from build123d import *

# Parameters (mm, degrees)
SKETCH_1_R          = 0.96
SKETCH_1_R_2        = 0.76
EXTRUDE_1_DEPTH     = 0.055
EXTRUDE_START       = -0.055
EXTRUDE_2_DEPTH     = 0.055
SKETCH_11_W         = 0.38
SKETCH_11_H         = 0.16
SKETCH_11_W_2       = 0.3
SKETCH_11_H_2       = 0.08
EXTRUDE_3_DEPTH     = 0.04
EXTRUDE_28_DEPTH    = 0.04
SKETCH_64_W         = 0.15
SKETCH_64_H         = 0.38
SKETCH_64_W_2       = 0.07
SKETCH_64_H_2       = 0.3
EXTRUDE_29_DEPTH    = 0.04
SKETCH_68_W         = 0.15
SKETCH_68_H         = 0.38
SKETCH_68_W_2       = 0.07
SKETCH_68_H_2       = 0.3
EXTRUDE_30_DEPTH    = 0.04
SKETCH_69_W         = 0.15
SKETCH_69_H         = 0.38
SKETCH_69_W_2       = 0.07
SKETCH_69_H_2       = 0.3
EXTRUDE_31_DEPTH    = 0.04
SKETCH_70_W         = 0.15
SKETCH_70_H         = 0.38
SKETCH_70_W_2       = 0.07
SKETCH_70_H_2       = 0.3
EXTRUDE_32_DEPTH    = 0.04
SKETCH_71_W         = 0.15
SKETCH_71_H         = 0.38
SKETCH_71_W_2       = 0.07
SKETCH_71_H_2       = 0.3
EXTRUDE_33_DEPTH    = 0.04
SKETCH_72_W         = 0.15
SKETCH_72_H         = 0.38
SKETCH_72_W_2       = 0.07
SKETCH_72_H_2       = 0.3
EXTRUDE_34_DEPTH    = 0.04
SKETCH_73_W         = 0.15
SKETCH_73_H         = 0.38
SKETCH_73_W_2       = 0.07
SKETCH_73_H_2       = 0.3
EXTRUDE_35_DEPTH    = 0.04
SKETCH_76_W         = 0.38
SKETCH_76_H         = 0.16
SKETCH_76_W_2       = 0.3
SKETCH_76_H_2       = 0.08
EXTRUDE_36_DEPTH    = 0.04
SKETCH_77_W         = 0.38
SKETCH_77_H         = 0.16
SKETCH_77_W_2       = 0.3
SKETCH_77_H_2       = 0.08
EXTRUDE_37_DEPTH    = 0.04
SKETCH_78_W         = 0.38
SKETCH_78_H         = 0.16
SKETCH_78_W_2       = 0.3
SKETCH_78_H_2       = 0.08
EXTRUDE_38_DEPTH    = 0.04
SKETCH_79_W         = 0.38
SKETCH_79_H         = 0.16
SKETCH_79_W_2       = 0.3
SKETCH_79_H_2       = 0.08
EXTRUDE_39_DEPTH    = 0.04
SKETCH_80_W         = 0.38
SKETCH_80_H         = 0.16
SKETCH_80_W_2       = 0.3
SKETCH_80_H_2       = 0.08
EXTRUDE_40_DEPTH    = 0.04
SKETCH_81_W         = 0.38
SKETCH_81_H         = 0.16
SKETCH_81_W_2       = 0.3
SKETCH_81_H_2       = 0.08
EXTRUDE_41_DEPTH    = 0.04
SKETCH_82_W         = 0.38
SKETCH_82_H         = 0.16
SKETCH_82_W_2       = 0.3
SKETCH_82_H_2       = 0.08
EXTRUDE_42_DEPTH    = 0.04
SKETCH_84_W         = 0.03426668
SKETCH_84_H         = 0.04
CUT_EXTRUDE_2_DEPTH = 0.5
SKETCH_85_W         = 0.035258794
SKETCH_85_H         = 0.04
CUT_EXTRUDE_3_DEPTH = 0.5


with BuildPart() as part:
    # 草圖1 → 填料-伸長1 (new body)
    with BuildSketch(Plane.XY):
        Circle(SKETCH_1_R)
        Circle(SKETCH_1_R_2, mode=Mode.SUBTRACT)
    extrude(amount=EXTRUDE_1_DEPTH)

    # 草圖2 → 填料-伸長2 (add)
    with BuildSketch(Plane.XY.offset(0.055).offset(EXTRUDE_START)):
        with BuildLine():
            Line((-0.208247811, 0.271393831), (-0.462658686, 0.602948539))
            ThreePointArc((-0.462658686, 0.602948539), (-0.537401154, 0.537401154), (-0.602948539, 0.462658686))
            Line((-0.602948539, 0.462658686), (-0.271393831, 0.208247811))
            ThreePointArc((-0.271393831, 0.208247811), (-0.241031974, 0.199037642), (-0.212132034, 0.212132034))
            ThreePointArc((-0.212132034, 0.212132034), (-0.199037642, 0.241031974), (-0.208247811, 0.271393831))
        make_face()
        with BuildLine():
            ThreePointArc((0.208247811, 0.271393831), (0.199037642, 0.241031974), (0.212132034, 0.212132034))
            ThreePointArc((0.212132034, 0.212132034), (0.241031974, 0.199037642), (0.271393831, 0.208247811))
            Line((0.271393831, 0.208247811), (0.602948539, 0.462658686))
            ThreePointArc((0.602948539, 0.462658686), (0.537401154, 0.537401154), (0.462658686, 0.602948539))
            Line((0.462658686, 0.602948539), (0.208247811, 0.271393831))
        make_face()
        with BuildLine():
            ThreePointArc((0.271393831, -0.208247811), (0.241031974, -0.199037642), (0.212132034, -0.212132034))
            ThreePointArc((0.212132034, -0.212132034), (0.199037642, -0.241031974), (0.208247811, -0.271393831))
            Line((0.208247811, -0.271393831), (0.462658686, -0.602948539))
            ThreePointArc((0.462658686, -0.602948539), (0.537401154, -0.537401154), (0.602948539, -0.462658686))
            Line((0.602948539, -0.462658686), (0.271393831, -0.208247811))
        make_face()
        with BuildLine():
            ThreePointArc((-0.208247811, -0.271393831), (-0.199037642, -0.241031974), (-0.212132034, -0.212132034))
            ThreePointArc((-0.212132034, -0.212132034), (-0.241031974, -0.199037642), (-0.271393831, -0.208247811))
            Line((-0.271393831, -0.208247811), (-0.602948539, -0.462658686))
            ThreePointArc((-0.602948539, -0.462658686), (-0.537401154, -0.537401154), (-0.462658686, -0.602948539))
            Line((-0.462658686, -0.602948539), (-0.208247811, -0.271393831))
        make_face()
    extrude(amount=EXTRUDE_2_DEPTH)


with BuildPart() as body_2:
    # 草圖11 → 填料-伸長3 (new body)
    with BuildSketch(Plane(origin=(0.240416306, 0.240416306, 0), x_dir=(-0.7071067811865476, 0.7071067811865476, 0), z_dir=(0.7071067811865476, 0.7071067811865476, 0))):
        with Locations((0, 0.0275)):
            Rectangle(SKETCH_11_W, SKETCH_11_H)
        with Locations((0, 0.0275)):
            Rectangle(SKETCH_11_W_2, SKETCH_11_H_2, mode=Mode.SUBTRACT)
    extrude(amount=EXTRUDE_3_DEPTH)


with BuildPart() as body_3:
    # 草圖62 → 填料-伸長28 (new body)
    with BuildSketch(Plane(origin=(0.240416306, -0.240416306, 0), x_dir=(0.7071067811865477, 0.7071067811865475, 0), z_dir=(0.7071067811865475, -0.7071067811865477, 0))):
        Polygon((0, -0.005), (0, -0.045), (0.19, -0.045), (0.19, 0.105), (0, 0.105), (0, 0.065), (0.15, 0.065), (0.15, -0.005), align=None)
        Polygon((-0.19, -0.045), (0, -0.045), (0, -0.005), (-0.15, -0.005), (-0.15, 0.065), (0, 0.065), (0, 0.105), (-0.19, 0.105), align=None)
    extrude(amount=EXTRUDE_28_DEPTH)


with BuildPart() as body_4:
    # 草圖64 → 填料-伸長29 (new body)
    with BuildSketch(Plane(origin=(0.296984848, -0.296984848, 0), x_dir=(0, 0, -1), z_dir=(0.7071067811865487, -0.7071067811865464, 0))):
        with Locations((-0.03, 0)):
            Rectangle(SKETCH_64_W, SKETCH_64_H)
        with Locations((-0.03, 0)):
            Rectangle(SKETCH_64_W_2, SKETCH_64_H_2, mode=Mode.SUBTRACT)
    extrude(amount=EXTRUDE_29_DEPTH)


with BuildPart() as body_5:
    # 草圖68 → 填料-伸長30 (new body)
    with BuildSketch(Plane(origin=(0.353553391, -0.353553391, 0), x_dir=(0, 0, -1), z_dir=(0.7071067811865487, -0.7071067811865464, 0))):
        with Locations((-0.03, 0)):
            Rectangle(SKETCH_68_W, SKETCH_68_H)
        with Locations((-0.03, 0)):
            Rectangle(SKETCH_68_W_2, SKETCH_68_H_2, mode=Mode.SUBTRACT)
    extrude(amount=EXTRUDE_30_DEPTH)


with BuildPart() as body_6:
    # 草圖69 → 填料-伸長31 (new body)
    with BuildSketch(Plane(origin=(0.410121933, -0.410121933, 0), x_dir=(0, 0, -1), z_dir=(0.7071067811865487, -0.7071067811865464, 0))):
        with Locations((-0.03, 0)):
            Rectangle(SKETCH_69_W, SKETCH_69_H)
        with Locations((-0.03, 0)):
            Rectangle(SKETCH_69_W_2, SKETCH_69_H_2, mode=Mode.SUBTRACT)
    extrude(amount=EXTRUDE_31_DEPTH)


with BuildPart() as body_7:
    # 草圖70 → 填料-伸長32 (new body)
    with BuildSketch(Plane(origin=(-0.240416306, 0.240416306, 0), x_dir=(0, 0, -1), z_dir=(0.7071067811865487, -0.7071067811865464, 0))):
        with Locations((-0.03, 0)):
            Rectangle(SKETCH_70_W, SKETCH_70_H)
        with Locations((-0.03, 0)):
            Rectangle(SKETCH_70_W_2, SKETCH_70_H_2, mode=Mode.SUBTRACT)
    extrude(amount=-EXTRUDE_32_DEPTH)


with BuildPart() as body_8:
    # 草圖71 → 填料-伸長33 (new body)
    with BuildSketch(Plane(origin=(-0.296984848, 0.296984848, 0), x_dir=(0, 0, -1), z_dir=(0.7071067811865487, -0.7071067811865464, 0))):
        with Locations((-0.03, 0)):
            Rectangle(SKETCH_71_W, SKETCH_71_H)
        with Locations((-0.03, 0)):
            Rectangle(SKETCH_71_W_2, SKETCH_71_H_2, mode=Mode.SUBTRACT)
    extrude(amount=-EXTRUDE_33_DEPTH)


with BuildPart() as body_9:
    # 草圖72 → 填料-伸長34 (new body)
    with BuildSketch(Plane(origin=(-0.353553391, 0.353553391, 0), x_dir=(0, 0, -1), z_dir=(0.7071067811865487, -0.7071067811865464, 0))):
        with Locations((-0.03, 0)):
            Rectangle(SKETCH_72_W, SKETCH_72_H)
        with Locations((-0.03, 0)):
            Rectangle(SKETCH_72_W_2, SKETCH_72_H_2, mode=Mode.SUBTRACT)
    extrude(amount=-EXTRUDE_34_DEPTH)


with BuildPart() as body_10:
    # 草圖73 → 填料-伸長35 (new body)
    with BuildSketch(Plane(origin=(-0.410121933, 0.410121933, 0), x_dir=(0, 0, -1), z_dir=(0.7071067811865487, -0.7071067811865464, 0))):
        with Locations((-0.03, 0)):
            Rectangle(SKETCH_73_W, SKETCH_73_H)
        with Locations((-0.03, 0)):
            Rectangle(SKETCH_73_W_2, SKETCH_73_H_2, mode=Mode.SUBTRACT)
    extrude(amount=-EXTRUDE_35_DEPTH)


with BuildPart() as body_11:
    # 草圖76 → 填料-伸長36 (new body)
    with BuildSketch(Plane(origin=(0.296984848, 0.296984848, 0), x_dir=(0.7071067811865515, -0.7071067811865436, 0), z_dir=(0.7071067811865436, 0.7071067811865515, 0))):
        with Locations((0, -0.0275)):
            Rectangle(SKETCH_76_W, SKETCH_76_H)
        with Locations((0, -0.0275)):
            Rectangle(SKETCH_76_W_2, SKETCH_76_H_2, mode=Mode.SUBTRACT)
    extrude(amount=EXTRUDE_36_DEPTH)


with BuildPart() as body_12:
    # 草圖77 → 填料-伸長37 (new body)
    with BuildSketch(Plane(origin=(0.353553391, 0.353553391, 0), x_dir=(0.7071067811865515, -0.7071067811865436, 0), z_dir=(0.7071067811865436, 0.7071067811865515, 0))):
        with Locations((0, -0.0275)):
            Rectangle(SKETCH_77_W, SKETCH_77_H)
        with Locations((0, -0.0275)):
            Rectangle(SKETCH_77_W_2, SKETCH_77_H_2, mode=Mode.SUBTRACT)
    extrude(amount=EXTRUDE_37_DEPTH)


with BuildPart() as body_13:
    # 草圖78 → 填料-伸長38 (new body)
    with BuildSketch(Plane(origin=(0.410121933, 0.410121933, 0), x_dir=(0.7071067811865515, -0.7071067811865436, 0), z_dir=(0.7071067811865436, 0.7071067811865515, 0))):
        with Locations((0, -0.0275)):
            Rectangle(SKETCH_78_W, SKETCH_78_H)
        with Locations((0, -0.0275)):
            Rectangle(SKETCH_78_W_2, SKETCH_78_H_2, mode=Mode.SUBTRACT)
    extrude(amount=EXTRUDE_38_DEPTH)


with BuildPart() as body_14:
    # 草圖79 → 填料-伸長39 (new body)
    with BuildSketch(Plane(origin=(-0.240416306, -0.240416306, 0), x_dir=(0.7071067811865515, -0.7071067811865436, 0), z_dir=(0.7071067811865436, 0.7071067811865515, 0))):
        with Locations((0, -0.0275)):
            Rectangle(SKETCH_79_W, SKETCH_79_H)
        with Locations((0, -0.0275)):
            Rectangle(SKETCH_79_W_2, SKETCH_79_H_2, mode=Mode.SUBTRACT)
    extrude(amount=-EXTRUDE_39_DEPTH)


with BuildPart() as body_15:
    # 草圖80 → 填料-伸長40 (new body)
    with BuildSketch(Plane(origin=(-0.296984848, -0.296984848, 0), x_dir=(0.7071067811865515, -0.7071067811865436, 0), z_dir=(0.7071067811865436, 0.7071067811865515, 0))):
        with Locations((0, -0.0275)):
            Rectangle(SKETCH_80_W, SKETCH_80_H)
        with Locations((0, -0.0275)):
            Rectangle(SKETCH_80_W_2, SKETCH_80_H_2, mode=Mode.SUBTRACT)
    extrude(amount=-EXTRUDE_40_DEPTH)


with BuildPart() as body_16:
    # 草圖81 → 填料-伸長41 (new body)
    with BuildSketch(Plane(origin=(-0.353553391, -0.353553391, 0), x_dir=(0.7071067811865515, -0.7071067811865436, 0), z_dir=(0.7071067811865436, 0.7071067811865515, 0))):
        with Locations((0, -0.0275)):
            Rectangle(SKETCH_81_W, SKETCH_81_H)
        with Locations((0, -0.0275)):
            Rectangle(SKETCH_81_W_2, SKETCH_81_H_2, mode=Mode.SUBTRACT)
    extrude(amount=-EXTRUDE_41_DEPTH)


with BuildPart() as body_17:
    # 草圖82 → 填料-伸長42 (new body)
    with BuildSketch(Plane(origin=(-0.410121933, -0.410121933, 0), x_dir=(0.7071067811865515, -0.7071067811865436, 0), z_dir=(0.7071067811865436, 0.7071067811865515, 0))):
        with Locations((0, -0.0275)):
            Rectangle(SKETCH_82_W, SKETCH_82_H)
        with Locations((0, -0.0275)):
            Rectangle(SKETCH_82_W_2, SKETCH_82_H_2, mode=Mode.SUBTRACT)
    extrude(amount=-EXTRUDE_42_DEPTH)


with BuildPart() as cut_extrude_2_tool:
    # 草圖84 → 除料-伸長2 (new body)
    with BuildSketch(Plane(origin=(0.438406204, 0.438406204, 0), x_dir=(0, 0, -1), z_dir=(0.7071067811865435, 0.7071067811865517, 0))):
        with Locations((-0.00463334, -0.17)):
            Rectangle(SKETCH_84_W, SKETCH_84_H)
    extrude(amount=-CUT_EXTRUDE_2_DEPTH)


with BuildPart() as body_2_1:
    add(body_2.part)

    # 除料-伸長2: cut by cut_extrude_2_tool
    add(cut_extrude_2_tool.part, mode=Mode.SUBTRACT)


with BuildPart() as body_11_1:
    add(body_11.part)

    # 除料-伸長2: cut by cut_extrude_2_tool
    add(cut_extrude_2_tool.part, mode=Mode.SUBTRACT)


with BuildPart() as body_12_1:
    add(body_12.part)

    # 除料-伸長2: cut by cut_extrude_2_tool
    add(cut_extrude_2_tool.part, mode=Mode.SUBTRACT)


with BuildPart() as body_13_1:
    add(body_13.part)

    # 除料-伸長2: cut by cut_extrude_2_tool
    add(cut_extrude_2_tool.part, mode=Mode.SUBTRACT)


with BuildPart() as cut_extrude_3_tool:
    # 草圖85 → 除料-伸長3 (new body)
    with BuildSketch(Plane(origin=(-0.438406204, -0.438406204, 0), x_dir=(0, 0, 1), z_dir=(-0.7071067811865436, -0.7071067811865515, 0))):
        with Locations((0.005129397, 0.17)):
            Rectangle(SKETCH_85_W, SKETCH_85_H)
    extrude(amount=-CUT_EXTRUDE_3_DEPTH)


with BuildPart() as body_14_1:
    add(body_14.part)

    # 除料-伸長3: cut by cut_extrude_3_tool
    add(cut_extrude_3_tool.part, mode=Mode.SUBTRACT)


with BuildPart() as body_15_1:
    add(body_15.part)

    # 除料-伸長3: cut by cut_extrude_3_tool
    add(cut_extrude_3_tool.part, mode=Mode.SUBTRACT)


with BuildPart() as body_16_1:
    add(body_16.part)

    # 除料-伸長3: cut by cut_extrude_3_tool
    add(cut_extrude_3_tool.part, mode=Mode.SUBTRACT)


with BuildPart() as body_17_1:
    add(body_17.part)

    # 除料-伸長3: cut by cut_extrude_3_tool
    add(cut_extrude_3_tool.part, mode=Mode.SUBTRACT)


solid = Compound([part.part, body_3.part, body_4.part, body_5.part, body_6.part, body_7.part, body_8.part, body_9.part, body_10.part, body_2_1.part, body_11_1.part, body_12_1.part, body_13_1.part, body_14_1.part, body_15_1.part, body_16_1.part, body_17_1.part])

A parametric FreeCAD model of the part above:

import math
import FreeCAD as App
import Part
import Sketcher
Q = App.Units.Quantity


def add_polygon(sketch, points):
    """Adds a closed chain of lines whose ends are joined by coincident constraints."""
    first, n = sketch.GeometryCount, len(points)
    for a, b in zip(points, points[1:] + points[:1]):
        sketch.addGeometry(Part.LineSegment(App.Vector(*a, 0), App.Vector(*b, 0)), False)
    for i in range(n):
        sketch.addConstraint(Sketcher.Constraint("Coincident", first + i, 2, first + (i + 1) % n, 1))

doc = App.newDocument("Part")
params = doc.addObject("Spreadsheet::Sheet", "Params")
for row, (alias, value) in enumerate([
    ("sketch1_diameter", "1.92 mm"),
    ("sketch1_diameter2", "1.52 mm"),
    ("pad1_length", "0.055 mm"),
    ("sketch2_radius", "0.76 mm"),
    ("pad2_length", "0.055 mm"),
    ("sketch3_width", "0.3 mm"),
    ("sketch3_width2", "0.38 mm"),
    ("sketch3_height", "0.16 mm"),
    ("sketch3_height2", "0.08 mm"),
    ("pad3_length", "0.04 mm"),
    ("sketch4_width", "0.3 mm"),
    ("sketch4_width2", "0.38 mm"),
    ("sketch4_height", "0.15 mm"),
    ("sketch4_height2", "0.07 mm"),
    ("pad4_length", "0.04 mm"),
    ("sketch5_height", "0.3 mm"),
    ("sketch5_width", "0.15 mm"),
    ("sketch5_width2", "0.07 mm"),
    ("sketch5_height2", "0.38 mm"),
    ("pad5_length", "0.04 mm"),
    ("sketch6_height", "0.3 mm"),
    ("sketch6_width", "0.15 mm"),
    ("sketch6_width2", "0.07 mm"),
    ("sketch6_height2", "0.38 mm"),
    ("pad6_length", "0.04 mm"),
    ("sketch7_height", "0.3 mm"),
    ("sketch7_width", "0.15 mm"),
    ("sketch7_width2", "0.07 mm"),
    ("sketch7_height2", "0.38 mm"),
    ("pad7_length", "0.04 mm"),
    ("sketch8_height", "0.3 mm"),
    ("sketch8_width", "0.15 mm"),
    ("sketch8_width2", "0.07 mm"),
    ("sketch8_height2", "0.38 mm"),
    ("pad8_length", "0.04 mm"),
    ("sketch9_height", "0.3 mm"),
    ("sketch9_width", "0.15 mm"),
    ("sketch9_width2", "0.07 mm"),
    ("sketch9_height2", "0.38 mm"),
    ("pad9_length", "0.04 mm"),
    ("sketch10_height", "0.3 mm"),
    ("sketch10_width", "0.15 mm"),
    ("sketch10_width2", "0.07 mm"),
    ("sketch10_height2", "0.38 mm"),
    ("pad10_length", "0.04 mm"),
    ("sketch11_height", "0.3 mm"),
    ("sketch11_width", "0.15 mm"),
    ("sketch11_width2", "0.07 mm"),
    ("sketch11_height2", "0.38 mm"),
    ("pad11_length", "0.04 mm"),
    ("sketch12_width", "0.3 mm"),
    ("sketch12_width2", "0.38 mm"),
    ("sketch12_height", "0.16 mm"),
    ("sketch12_height2", "0.08 mm"),
    ("pad12_length", "0.04 mm"),
    ("sketch13_width", "0.3 mm"),
    ("sketch13_width2", "0.38 mm"),
    ("sketch13_height", "0.16 mm"),
    ("sketch13_height2", "0.08 mm"),
    ("pad13_length", "0.04 mm"),
    ("sketch14_width", "0.3 mm"),
    ("sketch14_width2", "0.38 mm"),
    ("sketch14_height", "0.16 mm"),
    ("sketch14_height2", "0.08 mm"),
    ("pad14_length", "0.04 mm"),
    ("sketch15_width", "0.3 mm"),
    ("sketch15_width2", "0.38 mm"),
    ("sketch15_height", "0.16 mm"),
    ("sketch15_height2", "0.08 mm"),
    ("pad15_length", "0.04 mm"),
    ("sketch16_width", "0.3 mm"),
    ("sketch16_width2", "0.38 mm"),
    ("sketch16_height", "0.16 mm"),
    ("sketch16_height2", "0.08 mm"),
    ("pad16_length", "0.04 mm"),
    ("sketch17_width", "0.3 mm"),
    ("sketch17_width2", "0.38 mm"),
    ("sketch17_height", "0.16 mm"),
    ("sketch17_height2", "0.08 mm"),
    ("pad17_length", "0.04 mm"),
    ("sketch18_width", "0.3 mm"),
    ("sketch18_width2", "0.38 mm"),
    ("sketch18_height", "0.16 mm"),
    ("sketch18_height2", "0.08 mm"),
    ("pad18_length", "0.04 mm"),
    ("sketch19_height", "0.04 mm"),
    ("pad19_length", "0.5 mm"),
    ("sketch20_height", "0.04 mm"),
    ("pad20_length", "0.5 mm"),
], start=1):
    params.set(f"A{row}", alias)
    params.set(f"B{row}", "=" + value)
    params.setAlias(f"B{row}", alias)

body = doc.addObject("PartDesign::Body", "Body")

sketch1 = body.newObject("Sketcher::SketchObject", "Sketch")
sketch1.AttachmentSupport = (doc.getObject("XY_Plane"), [""])
sketch1.MapMode = "FlatFace"
sketch1.addGeometry([
    Part.Circle(App.Vector(0, 0, 0), App.Vector(0, 0, 1), 0.96),
    Part.Circle(App.Vector(0, 0, 0), App.Vector(0, 0, 1), 0.76),
], False)
sketch1.addConstraint([
    Sketcher.Constraint("Coincident", 0, 3, -1, 1),
    Sketcher.Constraint("Coincident", 1, 3, -1, 1),
    Sketcher.Constraint("Diameter", 0, Q("1.92 mm")),
    Sketcher.Constraint("Diameter", 1, Q("1.52 mm")),
])
sketch1.setExpression("Constraints[2]", "Params.sketch1_diameter")
sketch1.setExpression("Constraints[3]", "Params.sketch1_diameter2")
pad1 = body.newObject("PartDesign::Pad", "Pad")
pad1.Profile = sketch1
pad1.setExpression("Length", "Params.pad1_length")

sketch2 = body.newObject("Sketcher::SketchObject", "Sketch001")
sketch2.AttachmentSupport = (doc.getObject("XY_Plane"), [""])
sketch2.MapMode = "FlatFace"
sketch2.addGeometry([
    Part.LineSegment(App.Vector(-0.208248, 0.271394, 0), App.Vector(-0.462659, 0.602949, 0)),
    Part.ArcOfCircle(Part.Circle(App.Vector(0, 0, 0), App.Vector(0, 0, 1), 0.76), math.radians(127.5), math.radians(142.5)),
    Part.LineSegment(App.Vector(-0.602949, 0.462659, 0), App.Vector(-0.271394, 0.208248, 0)),
    Part.ArcOfCircle(Part.Circle(App.Vector(-0.243977, 0.243977, 0), App.Vector(0, 0, 1), 0.045036), math.radians(-127.5), math.radians(-45.000001)),
    Part.ArcOfCircle(Part.Circle(App.Vector(-0.243977, 0.243977, 0), App.Vector(0, 0, 1), 0.045036), math.radians(-44.999999), math.radians(37.5)),
    Part.ArcOfCircle(Part.Circle(App.Vector(0.243977, 0.243977, 0), App.Vector(0, 0, 1), 0.045036), math.radians(142.5), math.radians(224.999999)),
    Part.ArcOfCircle(Part.Circle(App.Vector(0.243977, 0.243977, 0), App.Vector(0, 0, 1), 0.045036), math.radians(-134.999999), math.radians(-52.5)),
    Part.LineSegment(App.Vector(0.271394, 0.208248, 0), App.Vector(0.602949, 0.462659, 0)),
    Part.ArcOfCircle(Part.Circle(App.Vector(0, 0, 0), App.Vector(0, 0, 1), 0.76), math.radians(37.5), math.radians(52.5)),
    Part.LineSegment(App.Vector(0.462659, 0.602949, 0), App.Vector(0.208248, 0.271394, 0)),
    Part.ArcOfCircle(Part.Circle(App.Vector(0.243977, -0.243977, 0), App.Vector(0, 0, 1), 0.045036), math.radians(52.5), math.radians(134.999999)),
    Part.ArcOfCircle(Part.Circle(App.Vector(0.243977, -0.243977, 0), App.Vector(0, 0, 1), 0.045036), math.radians(135.000001), math.radians(217.5)),
    Part.LineSegment(App.Vector(0.208248, -0.271394, 0), App.Vector(0.462659, -0.602949, 0)),
    Part.ArcOfCircle(Part.Circle(App.Vector(0, 0, 0), App.Vector(0, 0, 1), 0.76), math.radians(-52.5), math.radians(-37.5)),
    Part.LineSegment(App.Vector(0.602949, -0.462659, 0), App.Vector(0.271394, -0.208248, 0)),
    Part.ArcOfCircle(Part.Circle(App.Vector(-0.243977, -0.243977, 0), App.Vector(0, 0, 1), 0.045036), math.radians(-37.5), math.radians(44.999999)),
    Part.ArcOfCircle(Part.Circle(App.Vector(-0.243977, -0.243977, 0), App.Vector(0, 0, 1), 0.045036), math.radians(45.000001), math.radians(127.5)),
    Part.LineSegment(App.Vector(-0.271394, -0.208248, 0), App.Vector(-0.602949, -0.462659, 0)),
    Part.ArcOfCircle(Part.Circle(App.Vector(0, 0, 0), App.Vector(0, 0, 1), 0.76), math.radians(-142.5), math.radians(-127.5)),
    Part.LineSegment(App.Vector(-0.462659, -0.602949, 0), App.Vector(-0.208248, -0.271394, 0)),
], False)
sketch2.addConstraint([
    Sketcher.Constraint("Coincident", 0, 2, 1, 1),
    Sketcher.Constraint("Coincident", 1, 2, 2, 1),
    Sketcher.Constraint("Tangent", 2, 2, 3, 1),
    Sketcher.Constraint("Tangent", 3, 2, 4, 1),
    Sketcher.Constraint("Tangent", 4, 2, 0, 1),
    Sketcher.Constraint("Tangent", 5, 2, 6, 1),
    Sketcher.Constraint("Tangent", 6, 2, 7, 1),
    Sketcher.Constraint("Coincident", 7, 2, 8, 1),
    Sketcher.Constraint("Coincident", 8, 2, 9, 1),
    Sketcher.Constraint("Tangent", 9, 2, 5, 1),
    Sketcher.Constraint("Tangent", 10, 2, 11, 1),
    Sketcher.Constraint("Tangent", 11, 2, 12, 1),
    Sketcher.Constraint("Coincident", 12, 2, 13, 1),
    Sketcher.Constraint("Coincident", 13, 2, 14, 1),
    Sketcher.Constraint("Tangent", 14, 2, 10, 1),
    Sketcher.Constraint("Tangent", 15, 2, 16, 1),
    Sketcher.Constraint("Tangent", 16, 2, 17, 1),
    Sketcher.Constraint("Coincident", 17, 2, 18, 1),
    Sketcher.Constraint("Coincident", 18, 2, 19, 1),
    Sketcher.Constraint("Tangent", 19, 2, 15, 1),
    Sketcher.Constraint("Coincident", 1, 3, -1, 1),
    Sketcher.Constraint("Coincident", 8, 3, -1, 1),
    Sketcher.Constraint("Coincident", 13, 3, -1, 1),
    Sketcher.Constraint("Coincident", 18, 3, -1, 1),
    Sketcher.Constraint("Equal", 3, 4),
    Sketcher.Constraint("Equal", 4, 5),
    Sketcher.Constraint("Equal", 5, 6),
    Sketcher.Constraint("Equal", 1, 8),
    Sketcher.Constraint("Equal", 6, 10),
    Sketcher.Constraint("Equal", 10, 11),
    Sketcher.Constraint("Equal", 8, 13),
    Sketcher.Constraint("Equal", 11, 15),
    Sketcher.Constraint("Equal", 15, 16),
    Sketcher.Constraint("Equal", 13, 18),
    Sketcher.Constraint("Symmetric", 3, 3, 10, 3, -1, 1),
    Sketcher.Constraint("Symmetric", 5, 3, 15, 3, -1, 1),
    Sketcher.Constraint("Symmetric", 3, 3, 5, 3, -2),
    Sketcher.Constraint("Perpendicular", 0, 7),
    Sketcher.Constraint("Perpendicular", 2, 9),
    Sketcher.Constraint("Perpendicular", 7, 12),
    Sketcher.Constraint("Perpendicular", 9, 14),
    Sketcher.Constraint("Perpendicular", 12, 17),
    Sketcher.Constraint("Perpendicular", 14, 19),
    Sketcher.Constraint("Horizontal", 3, 2, 5, 2),
    Sketcher.Constraint("Horizontal", 2, 2, 6, 2),
    Sketcher.Constraint("Horizontal", 10, 2, 15, 2),
    Sketcher.Constraint("Vertical", 5, 2, 10, 2),
    Sketcher.Constraint("Equal", 0, 2),
    Sketcher.Constraint("Radius", 1, Q("0.76 mm")),
    Sketcher.Constraint("Angle", 0, Q("127.5 deg")),
    Sketcher.Constraint("Radius", 3, Q("0.045036 mm")),
    Sketcher.Constraint("DistanceY", 6, 2, 8, 2, Q("0.394701 mm")),
    Sketcher.Constraint("DistanceX", 2, 2, 3, 2, Q("0.059262 mm")),
])
sketch2.setExpression("Constraints[48]", "Params.sketch2_radius")
pad2 = body.newObject("PartDesign::Pad", "Pad001")
pad2.Profile = sketch2
pad2.setExpression("Length", "Params.pad2_length")
body2 = doc.addObject("PartDesign::Body", "Body001")

sketch3 = body2.newObject("Sketcher::SketchObject", "Sketch002")
sketch3.Placement = App.Placement(App.Vector(0.240416, 0.240416, 0), App.Rotation(App.Vector(-0.707106781, 0.707106781, 0), App.Vector(0, 0, 0.999999999), App.Vector(0.707106781, 0.707106781, 0), "ZXY"))
add_polygon(sketch3, [(-0.19, 0.1075), (-0.19, -0.0525), (0.19, -0.0525), (0.19, 0.1075)])
add_polygon(sketch3, [(0.15, -0.0125), (-0.15, -0.0125), (-0.15, 0.0675), (0.15, 0.0675)])
sketch3.addConstraint([
    Sketcher.Constraint("Vertical", 0),
    Sketcher.Constraint("Horizontal", 1),
    Sketcher.Constraint("Vertical", 2),
    Sketcher.Constraint("Horizontal", 3),
    Sketcher.Constraint("Horizontal", 4),
    Sketcher.Constraint("Vertical", 5),
    Sketcher.Constraint("Horizontal", 6),
    Sketcher.Constraint("Vertical", 7),
    Sketcher.Constraint("DistanceX", 4, 2, 4, 1, Q("0.3 mm")),
    Sketcher.Constraint("DistanceX", 1, 1, 1, 2, Q("0.38 mm")),
    Sketcher.Constraint("DistanceY", 0, 2, 0, 1, Q("0.16 mm")),
    Sketcher.Constraint("DistanceY", 5, 1, 5, 2, Q("0.08 mm")),
    Sketcher.Constraint("DistanceX", 0, 2, -1, 1, Q("0.19 mm")),
    Sketcher.Constraint("DistanceX", 4, 2, -1, 1, Q("0.15 mm")),
    Sketcher.Constraint("DistanceY", 0, 2, 4, 2, Q("0.04 mm")),
    Sketcher.Constraint("DistanceY", 0, 2, -1, 1, Q("0.0525 mm")),
])
sketch3.setExpression("Constraints[16]", "Params.sketch3_width")
sketch3.setExpression("Constraints[17]", "Params.sketch3_width2")
sketch3.setExpression("Constraints[18]", "Params.sketch3_height")
sketch3.setExpression("Constraints[19]", "Params.sketch3_height2")
pad3 = body2.newObject("PartDesign::Pad", "Pad002")
pad3.Profile = sketch3
pad3.setExpression("Length", "Params.pad3_length")
body3 = doc.addObject("PartDesign::Body", "Body002")

sketch4 = body3.newObject("Sketcher::SketchObject", "Sketch003")
sketch4.Placement = App.Placement(App.Vector(0.240416, -0.240416, 0), App.Rotation(App.Vector(0.707106781, 0.707106781, 0), App.Vector(0, 0, 0.999999999), App.Vector(0.707106781, -0.707106781, 0), "ZXY"))
add_polygon(sketch4, [(0.19, -0.045), (0.19, 0.105), (-0.19, 0.105), (-0.19, -0.045)])
add_polygon(sketch4, [(0.15, 0.065), (0.15, -0.005), (-0.15, -0.005), (-0.15, 0.065)])
sketch4.addConstraint([
    Sketcher.Constraint("Vertical", 0),
    Sketcher.Constraint("Horizontal", 1),
    Sketcher.Constraint("Vertical", 2),
    Sketcher.Constraint("Horizontal", 3),
    Sketcher.Constraint("Vertical", 4),
    Sketcher.Constraint("Horizontal", 5),
    Sketcher.Constraint("Vertical", 6),
    Sketcher.Constraint("Horizontal", 7),
    Sketcher.Constraint("DistanceX", 5, 2, 5, 1, Q("0.3 mm")),
    Sketcher.Constraint("DistanceX", 1, 2, 1, 1, Q("0.38 mm")),
    Sketcher.Constraint("DistanceY", 0, 1, 0, 2, Q("0.15 mm")),
    Sketcher.Constraint("DistanceY", 4, 2, 4, 1, Q("0.07 mm")),
    Sketcher.Constraint("DistanceX", -1, 1, 0, 2, Q("0.19 mm")),
    Sketcher.Constraint("DistanceX", -1, 1, 4, 2, Q("0.15 mm")),
    Sketcher.Constraint("DistanceY", 3, 2, 4, 2, Q("0.04 mm")),
    Sketcher.Constraint("DistanceY", -1, 1, 0, 2, Q("0.105 mm")),
])
sketch4.setExpression("Constraints[16]", "Params.sketch4_width")
sketch4.setExpression("Constraints[17]", "Params.sketch4_width2")
sketch4.setExpression("Constraints[18]", "Params.sketch4_height")
sketch4.setExpression("Constraints[19]", "Params.sketch4_height2")
pad4 = body3.newObject("PartDesign::Pad", "Pad003")
pad4.Profile = sketch4
pad4.setExpression("Length", "Params.pad4_length")
body4 = doc.addObject("PartDesign::Body", "Body003")

sketch5 = body4.newObject("Sketcher::SketchObject", "Sketch004")
sketch5.Placement = App.Placement(App.Vector(0.296985, -0.296985, 0), App.Rotation(App.Vector(0, 0, -1), App.Vector(0.707106781, 0.707106781, 0), App.Vector(0.707106781, -0.707106781, 0), "ZXY"))
add_polygon(sketch5, [(-0.105, 0.19), (-0.105, -0.19), (0.045, -0.19), (0.045, 0.19)])
add_polygon(sketch5, [(0.005, -0.15), (-0.065, -0.15), (-0.065, 0.15), (0.005, 0.15)])
sketch5.addConstraint([
    Sketcher.Constraint("Vertical", 0),
    Sketcher.Constraint("Horizontal", 1),
    Sketcher.Constraint("Vertical", 2),
    Sketcher.Constraint("Horizontal", 3),
    Sketcher.Constraint("Horizontal", 4),
    Sketcher.Constraint("Vertical", 5),
    Sketcher.Constraint("Horizontal", 6),
    Sketcher.Constraint("Vertical", 7),
    Sketcher.Constraint("DistanceY", 5, 1, 5, 2, Q("0.3 mm")),
    Sketcher.Constraint("DistanceX", 1, 1, 1, 2, Q("0.15 mm")),
    Sketcher.Constraint("DistanceX", 4, 2, 4, 1, Q("0.07 mm")),
    Sketcher.Constraint("DistanceY", 0, 2, 0, 1, Q("0.38 mm")),
    Sketcher.Constraint("DistanceY", 0, 2, -1, 1, Q("0.19 mm")),
    Sketcher.Constraint("DistanceY", 4, 2, -1, 1, Q("0.15 mm")),
    Sketcher.Constraint("DistanceX", 0, 2, 4, 2, Q("0.04 mm")),
    Sketcher.Constraint("DistanceX", 0, 2, -1, 1, Q("0.105 mm")),
])
sketch5.setExpression("Constraints[16]", "Params.sketch5_height")
sketch5.setExpression("Constraints[17]", "Params.sketch5_width")
sketch5.setExpression("Constraints[18]", "Params.sketch5_width2")
sketch5.setExpression("Constraints[19]", "Params.sketch5_height2")
pad5 = body4.newObject("PartDesign::Pad", "Pad004")
pad5.Profile = sketch5
pad5.setExpression("Length", "Params.pad5_length")
body5 = doc.addObject("PartDesign::Body", "Body004")

sketch6 = body5.newObject("Sketcher::SketchObject", "Sketch005")
sketch6.Placement = App.Placement(App.Vector(0.353553, -0.353553, 0), App.Rotation(App.Vector(0, 0, -1), App.Vector(0.707106781, 0.707106781, 0), App.Vector(0.707106781, -0.707106781, 0), "ZXY"))
add_polygon(sketch6, [(-0.105, 0.19), (-0.105, -0.19), (0.045, -0.19), (0.045, 0.19)])
add_polygon(sketch6, [(0.005, -0.15), (-0.065, -0.15), (-0.065, 0.15), (0.005, 0.15)])
sketch6.addConstraint([
    Sketcher.Constraint("Vertical", 0),
    Sketcher.Constraint("Horizontal", 1),
    Sketcher.Constraint("Vertical", 2),
    Sketcher.Constraint("Horizontal", 3),
    Sketcher.Constraint("Horizontal", 4),
    Sketcher.Constraint("Vertical", 5),
    Sketcher.Constraint("Horizontal", 6),
    Sketcher.Constraint("Vertical", 7),
    Sketcher.Constraint("DistanceY", 5, 1, 5, 2, Q("0.3 mm")),
    Sketcher.Constraint("DistanceX", 1, 1, 1, 2, Q("0.15 mm")),
    Sketcher.Constraint("DistanceX", 4, 2, 4, 1, Q("0.07 mm")),
    Sketcher.Constraint("DistanceY", 0, 2, 0, 1, Q("0.38 mm")),
    Sketcher.Constraint("DistanceY", 0, 2, -1, 1, Q("0.19 mm")),
    Sketcher.Constraint("DistanceY", 4, 2, -1, 1, Q("0.15 mm")),
    Sketcher.Constraint("DistanceX", 0, 2, 4, 2, Q("0.04 mm")),
    Sketcher.Constraint("DistanceX", 0, 2, -1, 1, Q("0.105 mm")),
])
sketch6.setExpression("Constraints[16]", "Params.sketch6_height")
sketch6.setExpression("Constraints[17]", "Params.sketch6_width")
sketch6.setExpression("Constraints[18]", "Params.sketch6_width2")
sketch6.setExpression("Constraints[19]", "Params.sketch6_height2")
pad6 = body5.newObject("PartDesign::Pad", "Pad005")
pad6.Profile = sketch6
pad6.setExpression("Length", "Params.pad6_length")
body6 = doc.addObject("PartDesign::Body", "Body005")

sketch7 = body6.newObject("Sketcher::SketchObject", "Sketch006")
sketch7.Placement = App.Placement(App.Vector(0.410122, -0.410122, 0), App.Rotation(App.Vector(0, 0, -1), App.Vector(0.707106781, 0.707106781, 0), App.Vector(0.707106781, -0.707106781, 0), "ZXY"))
add_polygon(sketch7, [(-0.105, 0.19), (-0.105, -0.19), (0.045, -0.19), (0.045, 0.19)])
add_polygon(sketch7, [(0.005, -0.15), (-0.065, -0.15), (-0.065, 0.15), (0.005, 0.15)])
sketch7.addConstraint([
    Sketcher.Constraint("Vertical", 0),
    Sketcher.Constraint("Horizontal", 1),
    Sketcher.Constraint("Vertical", 2),
    Sketcher.Constraint("Horizontal", 3),
    Sketcher.Constraint("Horizontal", 4),
    Sketcher.Constraint("Vertical", 5),
    Sketcher.Constraint("Horizontal", 6),
    Sketcher.Constraint("Vertical", 7),
    Sketcher.Constraint("DistanceY", 5, 1, 5, 2, Q("0.3 mm")),
    Sketcher.Constraint("DistanceX", 1, 1, 1, 2, Q("0.15 mm")),
    Sketcher.Constraint("DistanceX", 4, 2, 4, 1, Q("0.07 mm")),
    Sketcher.Constraint("DistanceY", 0, 2, 0, 1, Q("0.38 mm")),
    Sketcher.Constraint("DistanceY", 0, 2, -1, 1, Q("0.19 mm")),
    Sketcher.Constraint("DistanceY", 4, 2, -1, 1, Q("0.15 mm")),
    Sketcher.Constraint("DistanceX", 0, 2, 4, 2, Q("0.04 mm")),
    Sketcher.Constraint("DistanceX", 0, 2, -1, 1, Q("0.105 mm")),
])
sketch7.setExpression("Constraints[16]", "Params.sketch7_height")
sketch7.setExpression("Constraints[17]", "Params.sketch7_width")
sketch7.setExpression("Constraints[18]", "Params.sketch7_width2")
sketch7.setExpression("Constraints[19]", "Params.sketch7_height2")
pad7 = body6.newObject("PartDesign::Pad", "Pad006")
pad7.Profile = sketch7
pad7.setExpression("Length", "Params.pad7_length")
body7 = doc.addObject("PartDesign::Body", "Body006")

sketch8 = body7.newObject("Sketcher::SketchObject", "Sketch007")
sketch8.Placement = App.Placement(App.Vector(-0.240416, 0.240416, 0), App.Rotation(App.Vector(0, 0, -1), App.Vector(0.707106781, 0.707106781, 0), App.Vector(0.707106781, -0.707106781, 0), "ZXY"))
add_polygon(sketch8, [(-0.105, 0.19), (-0.105, -0.19), (0.045, -0.19), (0.045, 0.19)])
add_polygon(sketch8, [(0.005, -0.15), (-0.065, -0.15), (-0.065, 0.15), (0.005, 0.15)])
sketch8.addConstraint([
    Sketcher.Constraint("Vertical", 0),
    Sketcher.Constraint("Horizontal", 1),
    Sketcher.Constraint("Vertical", 2),
    Sketcher.Constraint("Horizontal", 3),
    Sketcher.Constraint("Horizontal", 4),
    Sketcher.Constraint("Vertical", 5),
    Sketcher.Constraint("Horizontal", 6),
    Sketcher.Constraint("Vertical", 7),
    Sketcher.Constraint("DistanceY", 5, 1, 5, 2, Q("0.3 mm")),
    Sketcher.Constraint("DistanceX", 1, 1, 1, 2, Q("0.15 mm")),
    Sketcher.Constraint("DistanceX", 4, 2, 4, 1, Q("0.07 mm")),
    Sketcher.Constraint("DistanceY", 0, 2, 0, 1, Q("0.38 mm")),
    Sketcher.Constraint("DistanceY", 0, 2, -1, 1, Q("0.19 mm")),
    Sketcher.Constraint("DistanceY", 4, 2, -1, 1, Q("0.15 mm")),
    Sketcher.Constraint("DistanceX", 0, 2, 4, 2, Q("0.04 mm")),
    Sketcher.Constraint("DistanceX", 0, 2, -1, 1, Q("0.105 mm")),
])
sketch8.setExpression("Constraints[16]", "Params.sketch8_height")
sketch8.setExpression("Constraints[17]", "Params.sketch8_width")
sketch8.setExpression("Constraints[18]", "Params.sketch8_width2")
sketch8.setExpression("Constraints[19]", "Params.sketch8_height2")
pad8 = body7.newObject("PartDesign::Pad", "Pad007")
pad8.Profile = sketch8
pad8.setExpression("Length", "Params.pad8_length")
pad8.Reversed = True
body8 = doc.addObject("PartDesign::Body", "Body007")

sketch9 = body8.newObject("Sketcher::SketchObject", "Sketch008")
sketch9.Placement = App.Placement(App.Vector(-0.296985, 0.296985, 0), App.Rotation(App.Vector(0, 0, -1), App.Vector(0.707106781, 0.707106781, 0), App.Vector(0.707106781, -0.707106781, 0), "ZXY"))
add_polygon(sketch9, [(-0.105, 0.19), (-0.105, -0.19), (0.045, -0.19), (0.045, 0.19)])
add_polygon(sketch9, [(0.005, -0.15), (-0.065, -0.15), (-0.065, 0.15), (0.005, 0.15)])
sketch9.addConstraint([
    Sketcher.Constraint("Vertical", 0),
    Sketcher.Constraint("Horizontal", 1),
    Sketcher.Constraint("Vertical", 2),
    Sketcher.Constraint("Horizontal", 3),
    Sketcher.Constraint("Horizontal", 4),
    Sketcher.Constraint("Vertical", 5),
    Sketcher.Constraint("Horizontal", 6),
    Sketcher.Constraint("Vertical", 7),
    Sketcher.Constraint("DistanceY", 5, 1, 5, 2, Q("0.3 mm")),
    Sketcher.Constraint("DistanceX", 1, 1, 1, 2, Q("0.15 mm")),
    Sketcher.Constraint("DistanceX", 4, 2, 4, 1, Q("0.07 mm")),
    Sketcher.Constraint("DistanceY", 0, 2, 0, 1, Q("0.38 mm")),
    Sketcher.Constraint("DistanceY", 0, 2, -1, 1, Q("0.19 mm")),
    Sketcher.Constraint("DistanceY", 4, 2, -1, 1, Q("0.15 mm")),
    Sketcher.Constraint("DistanceX", 0, 2, 4, 2, Q("0.04 mm")),
    Sketcher.Constraint("DistanceX", 0, 2, -1, 1, Q("0.105 mm")),
])
sketch9.setExpression("Constraints[16]", "Params.sketch9_height")
sketch9.setExpression("Constraints[17]", "Params.sketch9_width")
sketch9.setExpression("Constraints[18]", "Params.sketch9_width2")
sketch9.setExpression("Constraints[19]", "Params.sketch9_height2")
pad9 = body8.newObject("PartDesign::Pad", "Pad008")
pad9.Profile = sketch9
pad9.setExpression("Length", "Params.pad9_length")
pad9.Reversed = True
body9 = doc.addObject("PartDesign::Body", "Body008")

sketch10 = body9.newObject("Sketcher::SketchObject", "Sketch009")
sketch10.Placement = App.Placement(App.Vector(-0.353553, 0.353553, 0), App.Rotation(App.Vector(0, 0, -1), App.Vector(0.707106781, 0.707106781, 0), App.Vector(0.707106781, -0.707106781, 0), "ZXY"))
add_polygon(sketch10, [(-0.105, 0.19), (-0.105, -0.19), (0.045, -0.19), (0.045, 0.19)])
add_polygon(sketch10, [(0.005, -0.15), (-0.065, -0.15), (-0.065, 0.15), (0.005, 0.15)])
sketch10.addConstraint([
    Sketcher.Constraint("Vertical", 0),
    Sketcher.Constraint("Horizontal", 1),
    Sketcher.Constraint("Vertical", 2),
    Sketcher.Constraint("Horizontal", 3),
    Sketcher.Constraint("Horizontal", 4),
    Sketcher.Constraint("Vertical", 5),
    Sketcher.Constraint("Horizontal", 6),
    Sketcher.Constraint("Vertical", 7),
    Sketcher.Constraint("DistanceY", 5, 1, 5, 2, Q("0.3 mm")),
    Sketcher.Constraint("DistanceX", 1, 1, 1, 2, Q("0.15 mm")),
    Sketcher.Constraint("DistanceX", 4, 2, 4, 1, Q("0.07 mm")),
    Sketcher.Constraint("DistanceY", 0, 2, 0, 1, Q("0.38 mm")),
    Sketcher.Constraint("DistanceY", 0, 2, -1, 1, Q("0.19 mm")),
    Sketcher.Constraint("DistanceY", 4, 2, -1, 1, Q("0.15 mm")),
    Sketcher.Constraint("DistanceX", 0, 2, 4, 2, Q("0.04 mm")),
    Sketcher.Constraint("DistanceX", 0, 2, -1, 1, Q("0.105 mm")),
])
sketch10.setExpression("Constraints[16]", "Params.sketch10_height")
sketch10.setExpression("Constraints[17]", "Params.sketch10_width")
sketch10.setExpression("Constraints[18]", "Params.sketch10_width2")
sketch10.setExpression("Constraints[19]", "Params.sketch10_height2")
pad10 = body9.newObject("PartDesign::Pad", "Pad009")
pad10.Profile = sketch10
pad10.setExpression("Length", "Params.pad10_length")
pad10.Reversed = True
body10 = doc.addObject("PartDesign::Body", "Body009")

sketch11 = body10.newObject("Sketcher::SketchObject", "Sketch010")
sketch11.Placement = App.Placement(App.Vector(-0.410122, 0.410122, 0), App.Rotation(App.Vector(0, 0, -1), App.Vector(0.707106781, 0.707106781, 0), App.Vector(0.707106781, -0.707106781, 0), "ZXY"))
add_polygon(sketch11, [(-0.105, 0.19), (-0.105, -0.19), (0.045, -0.19), (0.045, 0.19)])
add_polygon(sketch11, [(0.005, -0.15), (-0.065, -0.15), (-0.065, 0.15), (0.005, 0.15)])
sketch11.addConstraint([
    Sketcher.Constraint("Vertical", 0),
    Sketcher.Constraint("Horizontal", 1),
    Sketcher.Constraint("Vertical", 2),
    Sketcher.Constraint("Horizontal", 3),
    Sketcher.Constraint("Horizontal", 4),
    Sketcher.Constraint("Vertical", 5),
    Sketcher.Constraint("Horizontal", 6),
    Sketcher.Constraint("Vertical", 7),
    Sketcher.Constraint("DistanceY", 5, 1, 5, 2, Q("0.3 mm")),
    Sketcher.Constraint("DistanceX", 1, 1, 1, 2, Q("0.15 mm")),
    Sketcher.Constraint("DistanceX", 4, 2, 4, 1, Q("0.07 mm")),
    Sketcher.Constraint("DistanceY", 0, 2, 0, 1, Q("0.38 mm")),
    Sketcher.Constraint("DistanceY", 0, 2, -1, 1, Q("0.19 mm")),
    Sketcher.Constraint("DistanceY", 4, 2, -1, 1, Q("0.15 mm")),
    Sketcher.Constraint("DistanceX", 0, 2, 4, 2, Q("0.04 mm")),
    Sketcher.Constraint("DistanceX", 0, 2, -1, 1, Q("0.105 mm")),
])
sketch11.setExpression("Constraints[16]", "Params.sketch11_height")
sketch11.setExpression("Constraints[17]", "Params.sketch11_width")
sketch11.setExpression("Constraints[18]", "Params.sketch11_width2")
sketch11.setExpression("Constraints[19]", "Params.sketch11_height2")
pad11 = body10.newObject("PartDesign::Pad", "Pad010")
pad11.Profile = sketch11
pad11.setExpression("Length", "Params.pad11_length")
pad11.Reversed = True
body11 = doc.addObject("PartDesign::Body", "Body010")

sketch12 = body11.newObject("Sketcher::SketchObject", "Sketch011")
sketch12.Placement = App.Placement(App.Vector(0.296985, 0.296985, 0), App.Rotation(App.Vector(0.707106781, -0.707106781, 0), App.Vector(0, 0, -0.999999999), App.Vector(0.707106781, 0.707106781, 0), "ZXY"))
add_polygon(sketch12, [(-0.19, 0.0525), (-0.19, -0.1075), (0.19, -0.1075), (0.19, 0.0525)])
add_polygon(sketch12, [(0.15, -0.0675), (-0.15, -0.0675), (-0.15, 0.0125), (0.15, 0.0125)])
sketch12.addConstraint([
    Sketcher.Constraint("Vertical", 0),
    Sketcher.Constraint("Horizontal", 1),
    Sketcher.Constraint("Vertical", 2),
    Sketcher.Constraint("Horizontal", 3),
    Sketcher.Constraint("Horizontal", 4),
    Sketcher.Constraint("Vertical", 5),
    Sketcher.Constraint("Horizontal", 6),
    Sketcher.Constraint("Vertical", 7),
    Sketcher.Constraint("DistanceX", 4, 2, 4, 1, Q("0.3 mm")),
    Sketcher.Constraint("DistanceX", 1, 1, 1, 2, Q("0.38 mm")),
    Sketcher.Constraint("DistanceY", 0, 2, 0, 1, Q("0.16 mm")),
    Sketcher.Constraint("DistanceY", 5, 1, 5, 2, Q("0.08 mm")),
    Sketcher.Constraint("DistanceX", 0, 2, -1, 1, Q("0.19 mm")),
    Sketcher.Constraint("DistanceX", 4, 2, -1, 1, Q("0.15 mm")),
    Sketcher.Constraint("DistanceY", 0, 2, 4, 2, Q("0.04 mm")),
    Sketcher.Constraint("DistanceY", 0, 2, -1, 1, Q("0.1075 mm")),
])
sketch12.setExpression("Constraints[16]", "Params.sketch12_width")
sketch12.setExpression("Constraints[17]", "Params.sketch12_width2")
sketch12.setExpression("Constraints[18]", "Params.sketch12_height")
sketch12.setExpression("Constraints[19]", "Params.sketch12_height2")
pad12 = body11.newObject("PartDesign::Pad", "Pad011")
pad12.Profile = sketch12
pad12.setExpression("Length", "Params.pad12_length")
body12 = doc.addObject("PartDesign::Body", "Body011")

sketch13 = body12.newObject("Sketcher::SketchObject", "Sketch012")
sketch13.Placement = App.Placement(App.Vector(0.353553, 0.353553, 0), App.Rotation(App.Vector(0.707106781, -0.707106781, 0), App.Vector(0, 0, -0.999999999), App.Vector(0.707106781, 0.707106781, 0), "ZXY"))
add_polygon(sketch13, [(-0.19, 0.0525), (-0.19, -0.1075), (0.19, -0.1075), (0.19, 0.0525)])
add_polygon(sketch13, [(0.15, -0.0675), (-0.15, -0.0675), (-0.15, 0.0125), (0.15, 0.0125)])
sketch13.addConstraint([
    Sketcher.Constraint("Vertical", 0),
    Sketcher.Constraint("Horizontal", 1),
    Sketcher.Constraint("Vertical", 2),
    Sketcher.Constraint("Horizontal", 3),
    Sketcher.Constraint("Horizontal", 4),
    Sketcher.Constraint("Vertical", 5),
    Sketcher.Constraint("Horizontal", 6),
    Sketcher.Constraint("Vertical", 7),
    Sketcher.Constraint("DistanceX", 4, 2, 4, 1, Q("0.3 mm")),
    Sketcher.Constraint("DistanceX", 1, 1, 1, 2, Q("0.38 mm")),
    Sketcher.Constraint("DistanceY", 0, 2, 0, 1, Q("0.16 mm")),
    Sketcher.Constraint("DistanceY", 5, 1, 5, 2, Q("0.08 mm")),
    Sketcher.Constraint("DistanceX", 0, 2, -1, 1, Q("0.19 mm")),
    Sketcher.Constraint("DistanceX", 4, 2, -1, 1, Q("0.15 mm")),
    Sketcher.Constraint("DistanceY", 0, 2, 4, 2, Q("0.04 mm")),
    Sketcher.Constraint("DistanceY", 0, 2, -1, 1, Q("0.1075 mm")),
])
sketch13.setExpression("Constraints[16]", "Params.sketch13_width")
sketch13.setExpression("Constraints[17]", "Params.sketch13_width2")
sketch13.setExpression("Constraints[18]", "Params.sketch13_height")
sketch13.setExpression("Constraints[19]", "Params.sketch13_height2")
pad13 = body12.newObject("PartDesign::Pad", "Pad012")
pad13.Profile = sketch13
pad13.setExpression("Length", "Params.pad13_length")
body13 = doc.addObject("PartDesign::Body", "Body012")

sketch14 = body13.newObject("Sketcher::SketchObject", "Sketch013")
sketch14.Placement = App.Placement(App.Vector(0.410122, 0.410122, 0), App.Rotation(App.Vector(0.707106781, -0.707106781, 0), App.Vector(0, 0, -0.999999999), App.Vector(0.707106781, 0.707106781, 0), "ZXY"))
add_polygon(sketch14, [(-0.19, 0.0525), (-0.19, -0.1075), (0.19, -0.1075), (0.19, 0.0525)])
add_polygon(sketch14, [(0.15, -0.0675), (-0.15, -0.0675), (-0.15, 0.0125), (0.15, 0.0125)])
sketch14.addConstraint([
    Sketcher.Constraint("Vertical", 0),
    Sketcher.Constraint("Horizontal", 1),
    Sketcher.Constraint("Vertical", 2),
    Sketcher.Constraint("Horizontal", 3),
    Sketcher.Constraint("Horizontal", 4),
    Sketcher.Constraint("Vertical", 5),
    Sketcher.Constraint("Horizontal", 6),
    Sketcher.Constraint("Vertical", 7),
    Sketcher.Constraint("DistanceX", 4, 2, 4, 1, Q("0.3 mm")),
    Sketcher.Constraint("DistanceX", 1, 1, 1, 2, Q("0.38 mm")),
    Sketcher.Constraint("DistanceY", 0, 2, 0, 1, Q("0.16 mm")),
    Sketcher.Constraint("DistanceY", 5, 1, 5, 2, Q("0.08 mm")),
    Sketcher.Constraint("DistanceX", 0, 2, -1, 1, Q("0.19 mm")),
    Sketcher.Constraint("DistanceX", 4, 2, -1, 1, Q("0.15 mm")),
    Sketcher.Constraint("DistanceY", 0, 2, 4, 2, Q("0.04 mm")),
    Sketcher.Constraint("DistanceY", 0, 2, -1, 1, Q("0.1075 mm")),
])
sketch14.setExpression("Constraints[16]", "Params.sketch14_width")
sketch14.setExpression("Constraints[17]", "Params.sketch14_width2")
sketch14.setExpression("Constraints[18]", "Params.sketch14_height")
sketch14.setExpression("Constraints[19]", "Params.sketch14_height2")
pad14 = body13.newObject("PartDesign::Pad", "Pad013")
pad14.Profile = sketch14
pad14.setExpression("Length", "Params.pad14_length")
body14 = doc.addObject("PartDesign::Body", "Body013")

sketch15 = body14.newObject("Sketcher::SketchObject", "Sketch014")
sketch15.Placement = App.Placement(App.Vector(-0.240416, -0.240416, 0), App.Rotation(App.Vector(0.707106781, -0.707106781, 0), App.Vector(0, 0, -0.999999999), App.Vector(0.707106781, 0.707106781, 0), "ZXY"))
add_polygon(sketch15, [(-0.19, 0.0525), (-0.19, -0.1075), (0.19, -0.1075), (0.19, 0.0525)])
add_polygon(sketch15, [(0.15, -0.0675), (-0.15, -0.0675), (-0.15, 0.0125), (0.15, 0.0125)])
sketch15.addConstraint([
    Sketcher.Constraint("Vertical", 0),
    Sketcher.Constraint("Horizontal", 1),
    Sketcher.Constraint("Vertical", 2),
    Sketcher.Constraint("Horizontal", 3),
    Sketcher.Constraint("Horizontal", 4),
    Sketcher.Constraint("Vertical", 5),
    Sketcher.Constraint("Horizontal", 6),
    Sketcher.Constraint("Vertical", 7),
    Sketcher.Constraint("DistanceX", 4, 2, 4, 1, Q("0.3 mm")),
    Sketcher.Constraint("DistanceX", 1, 1, 1, 2, Q("0.38 mm")),
    Sketcher.Constraint("DistanceY", 0, 2, 0, 1, Q("0.16 mm")),
    Sketcher.Constraint("DistanceY", 5, 1, 5, 2, Q("0.08 mm")),
    Sketcher.Constraint("DistanceX", 0, 2, -1, 1, Q("0.19 mm")),
    Sketcher.Constraint("DistanceX", 4, 2, -1, 1, Q("0.15 mm")),
    Sketcher.Constraint("DistanceY", 0, 2, 4, 2, Q("0.04 mm")),
    Sketcher.Constraint("DistanceY", 0, 2, -1, 1, Q("0.1075 mm")),
])
sketch15.setExpression("Constraints[16]", "Params.sketch15_width")
sketch15.setExpression("Constraints[17]", "Params.sketch15_width2")
sketch15.setExpression("Constraints[18]", "Params.sketch15_height")
sketch15.setExpression("Constraints[19]", "Params.sketch15_height2")
pad15 = body14.newObject("PartDesign::Pad", "Pad014")
pad15.Profile = sketch15
pad15.setExpression("Length", "Params.pad15_length")
pad15.Reversed = True
body15 = doc.addObject("PartDesign::Body", "Body014")

sketch16 = body15.newObject("Sketcher::SketchObject", "Sketch015")
sketch16.Placement = App.Placement(App.Vector(-0.296985, -0.296985, 0), App.Rotation(App.Vector(0.707106781, -0.707106781, 0), App.Vector(0, 0, -0.999999999), App.Vector(0.707106781, 0.707106781, 0), "ZXY"))
add_polygon(sketch16, [(-0.19, 0.0525), (-0.19, -0.1075), (0.19, -0.1075), (0.19, 0.0525)])
add_polygon(sketch16, [(0.15, -0.0675), (-0.15, -0.0675), (-0.15, 0.0125), (0.15, 0.0125)])
sketch16.addConstraint([
    Sketcher.Constraint("Vertical", 0),
    Sketcher.Constraint("Horizontal", 1),
    Sketcher.Constraint("Vertical", 2),
    Sketcher.Constraint("Horizontal", 3),
    Sketcher.Constraint("Horizontal", 4),
    Sketcher.Constraint("Vertical", 5),
    Sketcher.Constraint("Horizontal", 6),
    Sketcher.Constraint("Vertical", 7),
    Sketcher.Constraint("DistanceX", 4, 2, 4, 1, Q("0.3 mm")),
    Sketcher.Constraint("DistanceX", 1, 1, 1, 2, Q("0.38 mm")),
    Sketcher.Constraint("DistanceY", 0, 2, 0, 1, Q("0.16 mm")),
    Sketcher.Constraint("DistanceY", 5, 1, 5, 2, Q("0.08 mm")),
    Sketcher.Constraint("DistanceX", 0, 2, -1, 1, Q("0.19 mm")),
    Sketcher.Constraint("DistanceX", 4, 2, -1, 1, Q("0.15 mm")),
    Sketcher.Constraint("DistanceY", 0, 2, 4, 2, Q("0.04 mm")),
    Sketcher.Constraint("DistanceY", 0, 2, -1, 1, Q("0.1075 mm")),
])
sketch16.setExpression("Constraints[16]", "Params.sketch16_width")
sketch16.setExpression("Constraints[17]", "Params.sketch16_width2")
sketch16.setExpression("Constraints[18]", "Params.sketch16_height")
sketch16.setExpression("Constraints[19]", "Params.sketch16_height2")
pad16 = body15.newObject("PartDesign::Pad", "Pad015")
pad16.Profile = sketch16
pad16.setExpression("Length", "Params.pad16_length")
pad16.Reversed = True
body16 = doc.addObject("PartDesign::Body", "Body015")

sketch17 = body16.newObject("Sketcher::SketchObject", "Sketch016")
sketch17.Placement = App.Placement(App.Vector(-0.353553, -0.353553, 0), App.Rotation(App.Vector(0.707106781, -0.707106781, 0), App.Vector(0, 0, -0.999999999), App.Vector(0.707106781, 0.707106781, 0), "ZXY"))
add_polygon(sketch17, [(-0.19, 0.0525), (-0.19, -0.1075), (0.19, -0.1075), (0.19, 0.0525)])
add_polygon(sketch17, [(0.15, -0.0675), (-0.15, -0.0675), (-0.15, 0.0125), (0.15, 0.0125)])
sketch17.addConstraint([
    Sketcher.Constraint("Vertical", 0),
    Sketcher.Constraint("Horizontal", 1),
    Sketcher.Constraint("Vertical", 2),
    Sketcher.Constraint("Horizontal", 3),
    Sketcher.Constraint("Horizontal", 4),
    Sketcher.Constraint("Vertical", 5),
    Sketcher.Constraint("Horizontal", 6),
    Sketcher.Constraint("Vertical", 7),
    Sketcher.Constraint("DistanceX", 4, 2, 4, 1, Q("0.3 mm")),
    Sketcher.Constraint("DistanceX", 1, 1, 1, 2, Q("0.38 mm")),
    Sketcher.Constraint("DistanceY", 0, 2, 0, 1, Q("0.16 mm")),
    Sketcher.Constraint("DistanceY", 5, 1, 5, 2, Q("0.08 mm")),
    Sketcher.Constraint("DistanceX", 0, 2, -1, 1, Q("0.19 mm")),
    Sketcher.Constraint("DistanceX", 4, 2, -1, 1, Q("0.15 mm")),
    Sketcher.Constraint("DistanceY", 0, 2, 4, 2, Q("0.04 mm")),
    Sketcher.Constraint("DistanceY", 0, 2, -1, 1, Q("0.1075 mm")),
])
sketch17.setExpression("Constraints[16]", "Params.sketch17_width")
sketch17.setExpression("Constraints[17]", "Params.sketch17_width2")
sketch17.setExpression("Constraints[18]", "Params.sketch17_height")
sketch17.setExpression("Constraints[19]", "Params.sketch17_height2")
pad17 = body16.newObject("PartDesign::Pad", "Pad016")
pad17.Profile = sketch17
pad17.setExpression("Length", "Params.pad17_length")
pad17.Reversed = True
body17 = doc.addObject("PartDesign::Body", "Body016")

sketch18 = body17.newObject("Sketcher::SketchObject", "Sketch017")
sketch18.Placement = App.Placement(App.Vector(-0.410122, -0.410122, 0), App.Rotation(App.Vector(0.707106781, -0.707106781, 0), App.Vector(0, 0, -0.999999999), App.Vector(0.707106781, 0.707106781, 0), "ZXY"))
add_polygon(sketch18, [(-0.19, 0.0525), (-0.19, -0.1075), (0.19, -0.1075), (0.19, 0.0525)])
add_polygon(sketch18, [(0.15, -0.0675), (-0.15, -0.0675), (-0.15, 0.0125), (0.15, 0.0125)])
sketch18.addConstraint([
    Sketcher.Constraint("Vertical", 0),
    Sketcher.Constraint("Horizontal", 1),
    Sketcher.Constraint("Vertical", 2),
    Sketcher.Constraint("Horizontal", 3),
    Sketcher.Constraint("Horizontal", 4),
    Sketcher.Constraint("Vertical", 5),
    Sketcher.Constraint("Horizontal", 6),
    Sketcher.Constraint("Vertical", 7),
    Sketcher.Constraint("DistanceX", 4, 2, 4, 1, Q("0.3 mm")),
    Sketcher.Constraint("DistanceX", 1, 1, 1, 2, Q("0.38 mm")),
    Sketcher.Constraint("DistanceY", 0, 2, 0, 1, Q("0.16 mm")),
    Sketcher.Constraint("DistanceY", 5, 1, 5, 2, Q("0.08 mm")),
    Sketcher.Constraint("DistanceX", 0, 2, -1, 1, Q("0.19 mm")),
    Sketcher.Constraint("DistanceX", 4, 2, -1, 1, Q("0.15 mm")),
    Sketcher.Constraint("DistanceY", 0, 2, 4, 2, Q("0.04 mm")),
    Sketcher.Constraint("DistanceY", 0, 2, -1, 1, Q("0.1075 mm")),
])
sketch18.setExpression("Constraints[16]", "Params.sketch18_width")
sketch18.setExpression("Constraints[17]", "Params.sketch18_width2")
sketch18.setExpression("Constraints[18]", "Params.sketch18_height")
sketch18.setExpression("Constraints[19]", "Params.sketch18_height2")
pad18 = body17.newObject("PartDesign::Pad", "Pad017")
pad18.Profile = sketch18
pad18.setExpression("Length", "Params.pad18_length")
pad18.Reversed = True
body18 = doc.addObject("PartDesign::Body", "Body017")

sketch19 = body18.newObject("Sketcher::SketchObject", "Sketch018")
sketch19.Placement = App.Placement(App.Vector(0.438406, 0.438406, 0), App.Rotation(App.Vector(0, 0, -1), App.Vector(-0.707106781, 0.707106781, 0), App.Vector(0.707106781, 0.707106781, 0), "ZXY"))
add_polygon(sketch19, [(-0.021767, -0.15), (-0.021767, -0.19), (0.0125, -0.19), (0.0125, -0.15)])
sketch19.addConstraint([
    Sketcher.Constraint("Vertical", 0),
    Sketcher.Constraint("Horizontal", 1),
    Sketcher.Constraint("Vertical", 2),
    Sketcher.Constraint("Horizontal", 3),
    Sketcher.Constraint("DistanceY", 0, 2, 0, 1, Q("0.04 mm")),
    Sketcher.Constraint("DistanceY", 0, 2, -1, 1, Q("0.19 mm")),
    Sketcher.Constraint("DistanceX", -1, 1, 1, 2, Q("0.0125 mm")),
    Sketcher.Constraint("DistanceX", 1, 1, 1, 2, Q("0.034267 mm")),
])
sketch19.setExpression("Constraints[8]", "Params.sketch19_height")
pad19 = body18.newObject("PartDesign::Pad", "Pad018")
pad19.Profile = sketch19
pad19.setExpression("Length", "Params.pad19_length")
pad19.Reversed = True
doc.recompute()

body19 = doc.addObject("PartDesign::Body", "Body018")
body19.BaseFeature = body18
boolean = body2.newObject("PartDesign::Boolean", "Boolean")
boolean.Type = "Cut"
boolean.addObjects([body19])
doc.recompute()

body20 = doc.addObject("PartDesign::Body", "Body019")
body20.BaseFeature = body18
boolean2 = body11.newObject("PartDesign::Boolean", "Boolean001")
boolean2.Type = "Cut"
boolean2.addObjects([body20])
doc.recompute()

body21 = doc.addObject("PartDesign::Body", "Body020")
body21.BaseFeature = body18
boolean3 = body12.newObject("PartDesign::Boolean", "Boolean002")
boolean3.Type = "Cut"
boolean3.addObjects([body21])
doc.recompute()

boolean4 = body13.newObject("PartDesign::Boolean", "Boolean003")
boolean4.Type = "Cut"
boolean4.addObjects([body18])
body22 = doc.addObject("PartDesign::Body", "Body021")

sketch20 = body22.newObject("Sketcher::SketchObject", "Sketch019")
sketch20.Placement = App.Placement(App.Vector(-0.438406, -0.438406, 0), App.Rotation(App.Vector(0, 0, 1), App.Vector(-0.707106781, 0.707106781, 0), App.Vector(-0.707106781, -0.707106781, 0), "ZXY"))
add_polygon(sketch20, [(-0.0125, 0.19), (-0.0125, 0.15), (0.022759, 0.15), (0.022759, 0.19)])
sketch20.addConstraint([
    Sketcher.Constraint("Vertical", 0),
    Sketcher.Constraint("Horizontal", 1),
    Sketcher.Constraint("Vertical", 2),
    Sketcher.Constraint("Horizontal", 3),
    Sketcher.Constraint("DistanceY", 0, 2, 0, 1, Q("0.04 mm")),
    Sketcher.Constraint("DistanceY", -1, 1, 0, 2, Q("0.15 mm")),
    Sketcher.Constraint("DistanceX", 1, 1, 1, 2, Q("0.035259 mm")),
    Sketcher.Constraint("DistanceX", 0, 2, -1, 1, Q("0.0125 mm")),
])
sketch20.setExpression("Constraints[8]", "Params.sketch20_height")
pad20 = body22.newObject("PartDesign::Pad", "Pad019")
pad20.Profile = sketch20
pad20.setExpression("Length", "Params.pad20_length")
pad20.Reversed = True
doc.recompute()

body23 = doc.addObject("PartDesign::Body", "Body022")
body23.BaseFeature = body22
boolean5 = body14.newObject("PartDesign::Boolean", "Boolean004")
boolean5.Type = "Cut"
boolean5.addObjects([body23])
doc.recompute()

body24 = doc.addObject("PartDesign::Body", "Body023")
body24.BaseFeature = body22
boolean6 = body15.newObject("PartDesign::Boolean", "Boolean005")
boolean6.Type = "Cut"
boolean6.addObjects([body24])
doc.recompute()

body25 = doc.addObject("PartDesign::Body", "Body024")
body25.BaseFeature = body22
boolean7 = body16.newObject("PartDesign::Boolean", "Boolean006")
boolean7.Type = "Cut"
boolean7.addObjects([body25])
doc.recompute()

boolean8 = body17.newObject("PartDesign::Boolean", "Boolean007")
boolean8.Type = "Cut"
boolean8.addObjects([body22])

doc.recompute()
